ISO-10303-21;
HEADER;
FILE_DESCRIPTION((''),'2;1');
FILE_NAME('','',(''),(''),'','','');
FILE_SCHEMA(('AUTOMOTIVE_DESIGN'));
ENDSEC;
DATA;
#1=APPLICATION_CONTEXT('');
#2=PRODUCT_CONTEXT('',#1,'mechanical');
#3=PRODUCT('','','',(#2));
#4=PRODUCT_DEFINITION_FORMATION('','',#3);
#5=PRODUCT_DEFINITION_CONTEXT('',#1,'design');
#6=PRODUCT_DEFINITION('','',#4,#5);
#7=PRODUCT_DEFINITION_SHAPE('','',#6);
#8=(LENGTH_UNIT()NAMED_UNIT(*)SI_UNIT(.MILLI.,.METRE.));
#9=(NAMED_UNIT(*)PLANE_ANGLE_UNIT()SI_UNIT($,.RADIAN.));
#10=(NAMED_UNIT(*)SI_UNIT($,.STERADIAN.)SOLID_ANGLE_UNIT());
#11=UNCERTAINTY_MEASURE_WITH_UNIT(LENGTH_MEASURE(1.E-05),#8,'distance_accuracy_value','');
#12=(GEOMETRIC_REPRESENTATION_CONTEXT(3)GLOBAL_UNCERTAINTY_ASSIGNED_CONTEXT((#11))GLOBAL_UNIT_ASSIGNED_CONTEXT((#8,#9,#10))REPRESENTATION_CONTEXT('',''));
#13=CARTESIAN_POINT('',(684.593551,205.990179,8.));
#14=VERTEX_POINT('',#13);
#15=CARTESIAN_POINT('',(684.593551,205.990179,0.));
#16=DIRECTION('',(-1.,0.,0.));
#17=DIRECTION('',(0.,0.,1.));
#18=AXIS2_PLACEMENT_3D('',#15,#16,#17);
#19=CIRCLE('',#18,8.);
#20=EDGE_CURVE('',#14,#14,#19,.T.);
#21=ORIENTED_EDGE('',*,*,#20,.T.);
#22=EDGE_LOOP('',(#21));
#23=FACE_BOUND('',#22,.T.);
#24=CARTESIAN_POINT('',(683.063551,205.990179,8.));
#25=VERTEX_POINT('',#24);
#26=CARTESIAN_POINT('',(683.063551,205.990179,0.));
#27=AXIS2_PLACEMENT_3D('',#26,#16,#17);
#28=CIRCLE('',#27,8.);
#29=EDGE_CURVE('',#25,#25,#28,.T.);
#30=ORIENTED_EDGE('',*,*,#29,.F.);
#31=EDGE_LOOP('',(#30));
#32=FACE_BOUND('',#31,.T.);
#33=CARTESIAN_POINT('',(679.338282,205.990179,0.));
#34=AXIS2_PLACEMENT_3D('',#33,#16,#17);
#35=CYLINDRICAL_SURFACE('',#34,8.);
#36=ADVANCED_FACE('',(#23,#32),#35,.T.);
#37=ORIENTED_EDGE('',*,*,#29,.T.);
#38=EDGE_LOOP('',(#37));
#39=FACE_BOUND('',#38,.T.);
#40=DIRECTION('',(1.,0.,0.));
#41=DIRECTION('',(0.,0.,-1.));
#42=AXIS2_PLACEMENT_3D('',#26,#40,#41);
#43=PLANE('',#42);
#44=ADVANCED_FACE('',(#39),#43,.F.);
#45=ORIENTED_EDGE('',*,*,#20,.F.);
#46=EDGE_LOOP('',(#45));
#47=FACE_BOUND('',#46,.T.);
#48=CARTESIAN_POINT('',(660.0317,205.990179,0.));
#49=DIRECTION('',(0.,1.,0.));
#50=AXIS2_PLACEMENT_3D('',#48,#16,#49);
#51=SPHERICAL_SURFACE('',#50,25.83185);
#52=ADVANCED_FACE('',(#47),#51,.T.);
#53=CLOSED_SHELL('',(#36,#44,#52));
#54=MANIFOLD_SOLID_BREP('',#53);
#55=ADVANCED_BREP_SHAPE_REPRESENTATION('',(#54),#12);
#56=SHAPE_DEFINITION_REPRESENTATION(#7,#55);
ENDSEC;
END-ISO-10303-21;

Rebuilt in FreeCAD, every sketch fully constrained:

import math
import FreeCAD as App
import Part
import Sketcher

doc = App.newDocument("Part")
body = doc.addObject("PartDesign::Body", "Body")

# Sketch on XY plane
sketch1 = body.newObject("Sketcher::SketchObject", "Sketch")
sketch1.AttachmentSupport = (doc.getObject("XY_Plane"), [""])
sketch1.MapMode = "FlatFace"
sketch1.addGeometry(Part.LineSegment(App.Vector(683.063551, 213.990179, 0), App.Vector(683.063551, 205.990179, 0)), False)
sketch1.addGeometry(Part.LineSegment(App.Vector(683.063551, 205.990179, 0), App.Vector(685.863551, 205.990179, 0)), False)
sketch1.addGeometry(Part.ArcOfCircle(Part.Circle(App.Vector(660.0317, 205.990179, 0), App.Vector(0, 0, 1), 25.83185), math.radians(0), math.radians(18.040863)), False)
sketch1.addGeometry(Part.LineSegment(App.Vector(684.593551, 213.990179, 0), App.Vector(683.063551, 213.990179, 0)), False)
sketch1.addGeometry(Part.LineSegment(App.Vector(660.0317, 205.990179, 0), App.Vector(685.863551, 205.990179, 0)), True)  # axis
sketch1.addConstraint(Sketcher.Constraint("Coincident", 0, 2, 1, 1))
sketch1.addConstraint(Sketcher.Constraint("Coincident", 1, 2, 2, 1))
sketch1.addConstraint(Sketcher.Constraint("Coincident", 2, 2, 3, 1))
sketch1.addConstraint(Sketcher.Constraint("Coincident", 3, 2, 0, 1))
sketch1.addConstraint(Sketcher.Constraint("Vertical", 0))
sketch1.addConstraint(Sketcher.Constraint("Horizontal", 1))
sketch1.addConstraint(Sketcher.Constraint("Horizontal", 3))
sketch1.addConstraint(Sketcher.Constraint("Horizontal", 4))
sketch1.addConstraint(Sketcher.Constraint("Coincident", 4, 1, 2, 3))
sketch1.addConstraint(Sketcher.Constraint("Coincident", 4, 2, 1, 2))
sketch1.addConstraint(Sketcher.Constraint("DistanceY", 0, 2, 0, 1, 8.0))
sketch1.addConstraint(Sketcher.Constraint("DistanceX", 1, 1, 1, 2, 2.8))
sketch1.addConstraint(Sketcher.Constraint("DistanceX", 3, 2, 3, 1, 1.53))
sketch1.addConstraint(Sketcher.Constraint("DistanceX", -1, 1, 2, 3, 660.0317))
sketch1.addConstraint(Sketcher.Constraint("DistanceY", -1, 1, 2, 3, 205.990179))
revolution = body.newObject("PartDesign::Revolution", "Revolution")
revolution.Profile = sketch1
revolution.ReferenceAxis = (sketch1, ["Axis0"])
revolution.Angle = 360

doc.recompute()
